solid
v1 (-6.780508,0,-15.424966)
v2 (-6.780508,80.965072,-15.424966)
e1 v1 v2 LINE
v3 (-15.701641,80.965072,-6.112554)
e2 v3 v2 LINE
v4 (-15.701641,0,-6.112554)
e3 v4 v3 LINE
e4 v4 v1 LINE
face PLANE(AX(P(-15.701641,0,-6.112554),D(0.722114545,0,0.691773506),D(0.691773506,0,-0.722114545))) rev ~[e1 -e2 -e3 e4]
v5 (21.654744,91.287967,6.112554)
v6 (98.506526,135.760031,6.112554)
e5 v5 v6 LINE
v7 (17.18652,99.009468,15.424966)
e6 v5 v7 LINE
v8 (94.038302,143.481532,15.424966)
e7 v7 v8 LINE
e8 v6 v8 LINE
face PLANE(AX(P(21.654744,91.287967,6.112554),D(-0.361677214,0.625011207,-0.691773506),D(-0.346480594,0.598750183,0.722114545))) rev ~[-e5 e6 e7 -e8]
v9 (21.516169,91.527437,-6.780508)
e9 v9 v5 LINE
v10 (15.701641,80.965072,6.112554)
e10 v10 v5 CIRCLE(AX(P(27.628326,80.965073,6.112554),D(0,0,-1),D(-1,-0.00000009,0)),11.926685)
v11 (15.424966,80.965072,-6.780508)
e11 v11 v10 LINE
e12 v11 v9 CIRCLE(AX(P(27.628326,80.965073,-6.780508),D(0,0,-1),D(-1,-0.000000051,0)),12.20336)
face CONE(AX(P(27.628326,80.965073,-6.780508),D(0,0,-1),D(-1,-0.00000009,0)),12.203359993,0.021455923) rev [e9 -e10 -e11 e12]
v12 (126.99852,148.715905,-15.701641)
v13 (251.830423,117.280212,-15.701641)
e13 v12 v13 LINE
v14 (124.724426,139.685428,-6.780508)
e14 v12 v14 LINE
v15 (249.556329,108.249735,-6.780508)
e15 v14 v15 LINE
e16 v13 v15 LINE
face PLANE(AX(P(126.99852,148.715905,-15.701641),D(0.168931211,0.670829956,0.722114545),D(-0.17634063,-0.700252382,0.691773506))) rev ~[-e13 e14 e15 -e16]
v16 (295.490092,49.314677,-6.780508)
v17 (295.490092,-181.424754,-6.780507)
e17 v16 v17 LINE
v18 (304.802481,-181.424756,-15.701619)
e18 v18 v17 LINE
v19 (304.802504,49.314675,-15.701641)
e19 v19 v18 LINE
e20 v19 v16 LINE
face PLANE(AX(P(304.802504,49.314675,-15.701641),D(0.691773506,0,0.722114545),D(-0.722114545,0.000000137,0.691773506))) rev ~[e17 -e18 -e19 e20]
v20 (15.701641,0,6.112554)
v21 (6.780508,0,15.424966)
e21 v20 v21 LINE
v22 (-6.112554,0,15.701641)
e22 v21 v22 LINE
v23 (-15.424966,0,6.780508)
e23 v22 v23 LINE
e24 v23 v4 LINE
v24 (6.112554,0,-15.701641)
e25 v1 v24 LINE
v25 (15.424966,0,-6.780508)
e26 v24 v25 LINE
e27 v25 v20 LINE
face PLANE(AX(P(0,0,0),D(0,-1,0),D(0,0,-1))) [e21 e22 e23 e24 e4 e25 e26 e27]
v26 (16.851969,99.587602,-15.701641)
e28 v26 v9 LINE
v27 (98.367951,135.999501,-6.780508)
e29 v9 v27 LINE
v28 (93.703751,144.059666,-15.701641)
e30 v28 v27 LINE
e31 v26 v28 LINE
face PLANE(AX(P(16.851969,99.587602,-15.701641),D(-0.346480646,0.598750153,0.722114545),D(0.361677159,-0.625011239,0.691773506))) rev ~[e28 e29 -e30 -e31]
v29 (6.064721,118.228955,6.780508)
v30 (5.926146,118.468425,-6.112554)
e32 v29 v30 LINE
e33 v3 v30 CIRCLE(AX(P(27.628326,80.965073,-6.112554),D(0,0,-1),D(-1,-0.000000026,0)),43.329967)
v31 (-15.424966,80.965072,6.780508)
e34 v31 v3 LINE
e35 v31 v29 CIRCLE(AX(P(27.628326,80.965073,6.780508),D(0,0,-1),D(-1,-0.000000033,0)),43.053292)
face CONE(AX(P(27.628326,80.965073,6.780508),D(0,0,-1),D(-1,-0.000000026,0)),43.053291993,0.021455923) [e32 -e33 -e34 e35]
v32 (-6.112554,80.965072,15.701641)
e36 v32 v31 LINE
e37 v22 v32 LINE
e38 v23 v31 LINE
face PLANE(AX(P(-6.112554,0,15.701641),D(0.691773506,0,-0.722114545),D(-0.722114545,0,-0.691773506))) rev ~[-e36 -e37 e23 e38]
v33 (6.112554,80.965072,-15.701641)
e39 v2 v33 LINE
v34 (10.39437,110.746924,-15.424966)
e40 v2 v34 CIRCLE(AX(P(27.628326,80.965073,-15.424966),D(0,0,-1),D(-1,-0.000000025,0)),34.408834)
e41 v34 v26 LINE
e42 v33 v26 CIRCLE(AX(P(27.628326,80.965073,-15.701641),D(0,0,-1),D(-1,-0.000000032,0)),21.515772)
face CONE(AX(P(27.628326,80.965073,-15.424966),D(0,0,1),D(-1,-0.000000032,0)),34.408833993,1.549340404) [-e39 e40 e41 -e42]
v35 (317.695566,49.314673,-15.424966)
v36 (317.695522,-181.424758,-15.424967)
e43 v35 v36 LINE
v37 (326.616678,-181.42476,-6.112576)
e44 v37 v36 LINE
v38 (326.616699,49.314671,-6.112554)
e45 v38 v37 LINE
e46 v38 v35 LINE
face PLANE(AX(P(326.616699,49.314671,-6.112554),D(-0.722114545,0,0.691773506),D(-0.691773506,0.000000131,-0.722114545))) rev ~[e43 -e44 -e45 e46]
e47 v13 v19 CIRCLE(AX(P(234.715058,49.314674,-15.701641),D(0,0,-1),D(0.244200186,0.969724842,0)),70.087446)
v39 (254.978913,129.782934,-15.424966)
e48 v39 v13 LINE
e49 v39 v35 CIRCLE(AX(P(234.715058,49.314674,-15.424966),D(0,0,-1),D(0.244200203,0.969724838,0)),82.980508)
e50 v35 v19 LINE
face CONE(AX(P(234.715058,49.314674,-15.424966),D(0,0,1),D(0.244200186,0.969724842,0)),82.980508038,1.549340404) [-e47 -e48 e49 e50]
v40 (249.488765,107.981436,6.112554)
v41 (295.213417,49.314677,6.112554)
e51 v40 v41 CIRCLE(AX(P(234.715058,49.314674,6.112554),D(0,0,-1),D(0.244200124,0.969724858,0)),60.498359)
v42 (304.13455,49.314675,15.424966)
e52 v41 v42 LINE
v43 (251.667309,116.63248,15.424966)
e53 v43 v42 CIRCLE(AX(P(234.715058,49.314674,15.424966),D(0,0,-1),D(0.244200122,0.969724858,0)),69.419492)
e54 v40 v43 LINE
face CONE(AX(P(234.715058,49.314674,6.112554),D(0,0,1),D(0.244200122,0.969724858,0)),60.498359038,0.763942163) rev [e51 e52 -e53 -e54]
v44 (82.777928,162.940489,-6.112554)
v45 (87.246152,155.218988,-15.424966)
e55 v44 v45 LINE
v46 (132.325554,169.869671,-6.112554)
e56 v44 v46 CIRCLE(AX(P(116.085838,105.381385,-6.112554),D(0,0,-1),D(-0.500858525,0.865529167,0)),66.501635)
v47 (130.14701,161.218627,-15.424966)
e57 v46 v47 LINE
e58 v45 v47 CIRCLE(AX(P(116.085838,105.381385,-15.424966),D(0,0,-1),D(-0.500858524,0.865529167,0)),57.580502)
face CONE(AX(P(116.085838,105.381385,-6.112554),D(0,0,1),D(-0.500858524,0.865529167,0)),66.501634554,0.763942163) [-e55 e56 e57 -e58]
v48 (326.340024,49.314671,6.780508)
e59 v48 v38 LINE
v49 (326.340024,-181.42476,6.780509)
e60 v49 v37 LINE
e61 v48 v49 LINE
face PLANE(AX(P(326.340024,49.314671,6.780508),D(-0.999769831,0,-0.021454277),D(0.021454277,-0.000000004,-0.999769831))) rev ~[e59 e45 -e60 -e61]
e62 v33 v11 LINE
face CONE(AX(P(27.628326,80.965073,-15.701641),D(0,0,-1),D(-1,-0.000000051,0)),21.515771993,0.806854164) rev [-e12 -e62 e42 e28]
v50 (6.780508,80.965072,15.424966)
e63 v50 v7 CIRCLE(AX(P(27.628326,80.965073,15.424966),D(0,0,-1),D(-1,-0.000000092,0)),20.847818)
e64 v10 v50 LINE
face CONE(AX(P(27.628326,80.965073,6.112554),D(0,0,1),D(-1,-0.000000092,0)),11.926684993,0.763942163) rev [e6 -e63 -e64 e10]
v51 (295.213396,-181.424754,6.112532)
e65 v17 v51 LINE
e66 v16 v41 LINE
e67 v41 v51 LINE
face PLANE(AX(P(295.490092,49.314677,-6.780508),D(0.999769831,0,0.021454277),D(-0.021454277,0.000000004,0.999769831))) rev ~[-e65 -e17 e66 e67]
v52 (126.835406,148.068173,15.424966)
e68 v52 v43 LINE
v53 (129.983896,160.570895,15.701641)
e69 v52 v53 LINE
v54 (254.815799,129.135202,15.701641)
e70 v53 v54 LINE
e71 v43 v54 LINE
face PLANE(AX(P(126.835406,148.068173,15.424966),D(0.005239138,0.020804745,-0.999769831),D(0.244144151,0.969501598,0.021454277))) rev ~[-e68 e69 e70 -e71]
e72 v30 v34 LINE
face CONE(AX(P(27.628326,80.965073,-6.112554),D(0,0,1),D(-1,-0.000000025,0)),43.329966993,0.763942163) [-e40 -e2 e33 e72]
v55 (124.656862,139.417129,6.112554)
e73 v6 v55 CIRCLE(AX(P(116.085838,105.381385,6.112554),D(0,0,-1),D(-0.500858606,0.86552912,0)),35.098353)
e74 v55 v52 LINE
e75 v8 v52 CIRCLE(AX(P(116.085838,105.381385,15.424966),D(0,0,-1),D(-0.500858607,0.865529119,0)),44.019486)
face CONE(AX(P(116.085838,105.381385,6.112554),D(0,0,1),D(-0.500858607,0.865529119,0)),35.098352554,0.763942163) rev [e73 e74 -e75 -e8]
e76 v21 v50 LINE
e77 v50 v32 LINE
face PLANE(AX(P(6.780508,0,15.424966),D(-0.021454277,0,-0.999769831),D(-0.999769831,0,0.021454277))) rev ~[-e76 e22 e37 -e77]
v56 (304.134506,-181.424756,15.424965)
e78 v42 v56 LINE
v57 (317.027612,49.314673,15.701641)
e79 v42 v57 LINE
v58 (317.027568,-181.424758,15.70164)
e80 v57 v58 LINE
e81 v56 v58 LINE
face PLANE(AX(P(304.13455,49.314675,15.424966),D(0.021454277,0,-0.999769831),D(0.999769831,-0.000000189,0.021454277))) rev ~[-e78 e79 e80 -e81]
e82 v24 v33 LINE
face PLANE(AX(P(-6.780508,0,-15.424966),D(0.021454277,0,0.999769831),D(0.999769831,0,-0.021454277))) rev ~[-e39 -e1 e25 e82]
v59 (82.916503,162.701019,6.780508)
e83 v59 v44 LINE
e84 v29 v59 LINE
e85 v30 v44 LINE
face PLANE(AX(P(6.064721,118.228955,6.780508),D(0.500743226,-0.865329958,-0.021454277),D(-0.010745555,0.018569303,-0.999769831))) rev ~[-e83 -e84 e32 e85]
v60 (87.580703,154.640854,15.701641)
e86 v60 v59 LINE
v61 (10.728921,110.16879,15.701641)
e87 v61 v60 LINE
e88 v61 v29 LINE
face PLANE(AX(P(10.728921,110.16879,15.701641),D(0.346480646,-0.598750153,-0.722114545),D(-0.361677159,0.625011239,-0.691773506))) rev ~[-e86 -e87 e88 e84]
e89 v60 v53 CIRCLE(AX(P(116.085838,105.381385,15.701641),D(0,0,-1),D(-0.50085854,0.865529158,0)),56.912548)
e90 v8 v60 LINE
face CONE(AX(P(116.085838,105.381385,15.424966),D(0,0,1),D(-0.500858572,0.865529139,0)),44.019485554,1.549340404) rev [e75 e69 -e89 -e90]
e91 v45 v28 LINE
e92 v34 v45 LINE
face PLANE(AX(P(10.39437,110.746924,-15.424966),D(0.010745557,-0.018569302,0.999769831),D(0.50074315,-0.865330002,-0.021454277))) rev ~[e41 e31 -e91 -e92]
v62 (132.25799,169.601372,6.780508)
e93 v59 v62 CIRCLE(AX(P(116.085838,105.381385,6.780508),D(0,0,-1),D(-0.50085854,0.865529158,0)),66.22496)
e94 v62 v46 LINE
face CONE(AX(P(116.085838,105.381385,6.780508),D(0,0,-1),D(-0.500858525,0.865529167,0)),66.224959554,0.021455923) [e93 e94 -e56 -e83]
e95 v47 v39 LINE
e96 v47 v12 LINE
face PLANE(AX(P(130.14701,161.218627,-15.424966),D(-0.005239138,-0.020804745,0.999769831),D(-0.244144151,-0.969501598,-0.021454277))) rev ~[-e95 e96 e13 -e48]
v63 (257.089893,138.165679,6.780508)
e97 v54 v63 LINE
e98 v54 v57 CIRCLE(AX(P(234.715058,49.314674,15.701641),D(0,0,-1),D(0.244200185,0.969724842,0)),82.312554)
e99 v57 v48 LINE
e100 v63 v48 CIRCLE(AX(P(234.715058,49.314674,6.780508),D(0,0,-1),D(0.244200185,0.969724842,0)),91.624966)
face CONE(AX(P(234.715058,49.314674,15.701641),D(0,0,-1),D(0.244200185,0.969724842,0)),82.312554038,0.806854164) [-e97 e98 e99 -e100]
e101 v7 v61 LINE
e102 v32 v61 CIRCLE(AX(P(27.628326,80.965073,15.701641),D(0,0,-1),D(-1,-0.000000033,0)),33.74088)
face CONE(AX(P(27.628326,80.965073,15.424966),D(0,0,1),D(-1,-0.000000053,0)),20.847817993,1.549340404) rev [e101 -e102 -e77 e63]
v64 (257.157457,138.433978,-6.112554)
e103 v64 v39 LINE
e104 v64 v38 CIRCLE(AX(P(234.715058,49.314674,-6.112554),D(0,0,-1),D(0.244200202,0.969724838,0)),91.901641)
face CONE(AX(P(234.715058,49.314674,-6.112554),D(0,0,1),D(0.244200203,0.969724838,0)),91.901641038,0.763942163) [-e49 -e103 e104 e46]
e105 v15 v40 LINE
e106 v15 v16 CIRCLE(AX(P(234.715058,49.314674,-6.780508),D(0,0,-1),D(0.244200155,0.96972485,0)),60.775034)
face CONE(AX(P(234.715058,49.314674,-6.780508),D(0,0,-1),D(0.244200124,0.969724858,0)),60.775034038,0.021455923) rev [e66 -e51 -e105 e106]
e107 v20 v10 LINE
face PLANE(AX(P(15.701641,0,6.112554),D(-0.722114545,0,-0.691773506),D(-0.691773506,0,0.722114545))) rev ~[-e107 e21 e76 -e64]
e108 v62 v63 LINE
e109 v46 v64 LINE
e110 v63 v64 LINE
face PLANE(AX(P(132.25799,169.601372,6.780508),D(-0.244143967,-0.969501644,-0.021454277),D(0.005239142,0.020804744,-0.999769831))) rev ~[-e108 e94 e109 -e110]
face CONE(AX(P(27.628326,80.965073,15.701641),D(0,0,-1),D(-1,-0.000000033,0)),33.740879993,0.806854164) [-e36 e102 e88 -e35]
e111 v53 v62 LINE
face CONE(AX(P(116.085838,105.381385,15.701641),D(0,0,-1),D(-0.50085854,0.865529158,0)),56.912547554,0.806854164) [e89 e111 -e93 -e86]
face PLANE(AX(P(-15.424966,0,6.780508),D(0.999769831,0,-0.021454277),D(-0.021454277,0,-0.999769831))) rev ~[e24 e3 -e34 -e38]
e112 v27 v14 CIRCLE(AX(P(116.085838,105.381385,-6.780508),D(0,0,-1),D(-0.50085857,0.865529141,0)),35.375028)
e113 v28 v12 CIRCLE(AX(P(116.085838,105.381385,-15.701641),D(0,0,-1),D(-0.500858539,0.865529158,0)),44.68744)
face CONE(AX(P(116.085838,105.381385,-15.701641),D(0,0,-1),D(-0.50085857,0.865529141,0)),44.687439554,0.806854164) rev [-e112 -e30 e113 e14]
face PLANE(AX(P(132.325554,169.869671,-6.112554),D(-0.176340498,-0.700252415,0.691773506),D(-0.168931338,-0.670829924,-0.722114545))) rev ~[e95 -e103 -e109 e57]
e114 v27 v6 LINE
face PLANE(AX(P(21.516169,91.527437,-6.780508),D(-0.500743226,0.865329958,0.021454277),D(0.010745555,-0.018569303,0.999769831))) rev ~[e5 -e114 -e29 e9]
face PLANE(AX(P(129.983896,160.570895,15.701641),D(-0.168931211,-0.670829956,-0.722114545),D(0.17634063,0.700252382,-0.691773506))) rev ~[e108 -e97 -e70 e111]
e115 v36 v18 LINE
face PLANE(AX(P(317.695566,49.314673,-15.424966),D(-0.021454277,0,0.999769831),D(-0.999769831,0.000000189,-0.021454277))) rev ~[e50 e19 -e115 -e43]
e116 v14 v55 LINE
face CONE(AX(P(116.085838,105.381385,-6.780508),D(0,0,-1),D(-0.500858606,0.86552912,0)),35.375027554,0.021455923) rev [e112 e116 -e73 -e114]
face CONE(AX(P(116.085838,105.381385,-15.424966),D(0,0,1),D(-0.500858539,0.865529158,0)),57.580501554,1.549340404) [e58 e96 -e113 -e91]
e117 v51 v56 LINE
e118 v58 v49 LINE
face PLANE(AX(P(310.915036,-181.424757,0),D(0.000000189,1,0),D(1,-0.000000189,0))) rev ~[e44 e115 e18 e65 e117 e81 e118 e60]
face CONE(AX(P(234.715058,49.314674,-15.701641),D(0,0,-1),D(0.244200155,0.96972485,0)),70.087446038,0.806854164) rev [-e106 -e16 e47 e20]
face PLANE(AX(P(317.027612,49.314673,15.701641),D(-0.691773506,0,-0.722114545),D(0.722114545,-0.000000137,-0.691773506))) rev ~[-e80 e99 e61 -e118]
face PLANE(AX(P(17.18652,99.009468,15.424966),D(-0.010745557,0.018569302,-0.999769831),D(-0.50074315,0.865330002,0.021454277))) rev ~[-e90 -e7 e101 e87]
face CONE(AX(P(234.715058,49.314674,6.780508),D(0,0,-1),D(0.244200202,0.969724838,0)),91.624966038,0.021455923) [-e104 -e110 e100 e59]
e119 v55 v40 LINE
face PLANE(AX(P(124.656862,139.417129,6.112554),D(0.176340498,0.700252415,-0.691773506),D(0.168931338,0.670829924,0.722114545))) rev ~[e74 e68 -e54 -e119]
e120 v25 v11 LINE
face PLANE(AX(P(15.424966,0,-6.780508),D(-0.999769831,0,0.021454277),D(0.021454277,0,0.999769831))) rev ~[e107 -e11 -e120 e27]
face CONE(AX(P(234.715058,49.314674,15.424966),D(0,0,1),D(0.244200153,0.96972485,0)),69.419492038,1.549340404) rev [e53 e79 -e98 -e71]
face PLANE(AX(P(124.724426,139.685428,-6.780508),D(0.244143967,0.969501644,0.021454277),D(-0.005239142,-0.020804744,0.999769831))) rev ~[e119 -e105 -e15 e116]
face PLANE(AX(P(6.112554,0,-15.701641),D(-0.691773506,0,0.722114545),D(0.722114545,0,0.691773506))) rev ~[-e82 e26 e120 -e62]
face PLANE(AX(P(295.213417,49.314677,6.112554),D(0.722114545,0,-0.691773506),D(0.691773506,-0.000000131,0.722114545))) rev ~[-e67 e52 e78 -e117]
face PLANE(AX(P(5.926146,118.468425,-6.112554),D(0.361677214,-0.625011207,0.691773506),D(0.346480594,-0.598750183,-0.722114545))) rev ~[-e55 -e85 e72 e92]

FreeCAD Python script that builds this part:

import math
import FreeCAD as App
import Part
import Sketcher

V = App.Vector
Q = App.Units.Quantity

doc = App.newDocument("Part")
params = doc.addObject("Spreadsheet::Sheet", "Params")
for row, (alias, value) in enumerate([
    ("sketch2_radius", "3 in"),
], start=1):
    params.set(f"A{row}", alias)
    params.set(f"B{row}", "=" + value)
    params.setAlias(f"B{row}", alias)

body = doc.addObject("PartDesign::Body", "Body")

sketch1 = body.newObject("Sketcher::SketchObject", "Sketch")
sketch1.AttachmentSupport = (doc.getObject("XZ_Plane"), [""])
sketch1.MapMode = "FlatFace"
sketch1.addGeometry([
    Part.LineSegment(V(-6, 16, 0), V(-15, 7, 0)),
    Part.LineSegment(V(-15, 7, 0), V(-16, -6, 0)),
    Part.LineSegment(V(-16, -6, 0), V(-7, -15, 0)),
    Part.LineSegment(V(-7, -15, 0), V(6, -16, 0)),
    Part.LineSegment(V(6, -16, 0), V(15, -7, 0)),
    Part.LineSegment(V(15, -7, 0), V(16, 6, 0)),
    Part.LineSegment(V(16, 6, 0), V(7, 15, 0)),
    Part.LineSegment(V(7, 15, 0), V(-6, 16, 0)),
], False)
sketch1.addConstraint([
    Sketcher.Constraint("Coincident", 0, 2, 1, 1),
    Sketcher.Constraint("Coincident", 1, 2, 2, 1),
    Sketcher.Constraint("Coincident", 2, 2, 3, 1),
    Sketcher.Constraint("Coincident", 3, 2, 4, 1),
    Sketcher.Constraint("Coincident", 4, 2, 5, 1),
    Sketcher.Constraint("Coincident", 5, 2, 6, 1),
    Sketcher.Constraint("Coincident", 6, 2, 7, 1),
    Sketcher.Constraint("Coincident", 7, 2, 0, 1),
    Sketcher.Constraint("Symmetric", 0, 2, 4, 2, -1, 1),
    Sketcher.Constraint("Symmetric", 1, 2, 5, 2, -1, 1),
    Sketcher.Constraint("Symmetric", 2, 2, 6, 2, -1, 1),
    Sketcher.Constraint("Symmetric", 3, 2, 7, 2, -1, 1),
    Sketcher.Constraint("Perpendicular", 0, 2),
    Sketcher.Constraint("Perpendicular", 1, 3),
    Sketcher.Constraint("Equal", 0, 1),
    Sketcher.Constraint("Equal", 1, 2),
    Sketcher.Constraint("Equal", 2, 3),
    Sketcher.Constraint("Distance", 0, 12.896032),
    Sketcher.Constraint("DistanceY", -1, 1, 0, 2, 6.780508),
    Sketcher.Constraint("DistanceX", 1, 2, -1, 1, 15.701641),
])

sketch2 = body.newObject("Sketcher::SketchObject", "Sketch001")
sketch2.AttachmentSupport = (doc.getObject("XY_Plane"), [""])
sketch2.MapMode = "FlatFace"
sketch2.addGeometry([
    Part.LineSegment(V(0, 0, 0), V(0, 81, 0)),
    Part.ArcOfCircle(Part.Circle(V(28, 81, 0), V(0, 0, 1), 28), math.radians(120), math.radians(180)),
    Part.LineSegment(V(14, 105, 0), V(91, 149, 0)),
    Part.ArcOfCircle(Part.Circle(V(116, 105, 0), V(0, 0, 1), 51), math.radians(76), math.radians(120)),
    Part.LineSegment(V(128, 155, 0), V(253, 123, 0)),
    Part.ArcOfCircle(Part.Circle(V(235, 49, 0), V(0, 0, 1), 76), math.radians(0), math.radians(76)),
    Part.LineSegment(V(311, 49, 0), V(311, -181, 0)),
], False)
sketch2.addConstraint([
    Sketcher.Constraint("Tangent", 0, 2, 1, 2),
    Sketcher.Constraint("Tangent", 1, 1, 2, 1),
    Sketcher.Constraint("Tangent", 2, 2, 3, 2),
    Sketcher.Constraint("Tangent", 3, 1, 4, 1),
    Sketcher.Constraint("Tangent", 4, 2, 5, 2),
    Sketcher.Constraint("Tangent", 5, 1, 6, 1),
    Sketcher.Constraint("Vertical", 0),
    Sketcher.Constraint("Vertical", 6),
    Sketcher.Constraint("Coincident", 0, 1, -1, 1),
    Sketcher.Constraint("Radius", 5, Q("3 in")),
    Sketcher.Constraint("Radius", 1, 27.628326),
    Sketcher.Constraint("Radius", 3, 50.799994),
    Sketcher.Constraint("Distance", 4, 128.729199),
    Sketcher.Constraint("DistanceY", 6, 2, 6, 1, 230.739431),
    Sketcher.Constraint("DistanceY", -1, 1, 3, 1, 154.6434),
    Sketcher.Constraint("DistanceY", 5, 3, 1, 3, 31.650399),
    Sketcher.Constraint("DistanceX", 1, 3, 2, 2, 63.013901),
    Sketcher.Constraint("Distance", 2, 88.791671),
])
sketch2.setExpression("Constraints[9]", "Params.sketch2_radius")
doc.recompute()

additivepipe = body.newObject("PartDesign::AdditivePipe", "AdditivePipe")
additivepipe.Profile = sketch1
additivepipe.Spine = (sketch2, ["Edge1", "Edge2", "Edge3", "Edge4", "Edge5", "Edge6", "Edge7"])

doc.recompute()
